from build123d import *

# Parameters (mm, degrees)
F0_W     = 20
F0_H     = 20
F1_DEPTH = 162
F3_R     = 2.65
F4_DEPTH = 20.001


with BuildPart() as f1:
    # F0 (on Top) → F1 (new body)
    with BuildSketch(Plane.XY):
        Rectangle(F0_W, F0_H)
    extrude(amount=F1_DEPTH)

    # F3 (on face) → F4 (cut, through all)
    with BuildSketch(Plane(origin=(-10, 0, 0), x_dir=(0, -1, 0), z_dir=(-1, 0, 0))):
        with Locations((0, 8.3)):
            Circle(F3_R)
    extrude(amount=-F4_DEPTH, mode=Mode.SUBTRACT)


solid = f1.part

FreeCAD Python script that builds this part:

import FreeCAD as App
import Part
import Sketcher


def add_polygon(sketch, points):
    """Adds a closed chain of lines whose ends are joined by coincident constraints."""
    first, n = sketch.GeometryCount, len(points)
    for a, b in zip(points, points[1:] + points[:1]):
        sketch.addGeometry(Part.LineSegment(App.Vector(*a, 0), App.Vector(*b, 0)), False)
    for i in range(n):
        sketch.addConstraint(Sketcher.Constraint("Coincident", first + i, 2, first + (i + 1) % n, 1))

doc = App.newDocument("Part")
body = doc.addObject("PartDesign::Body", "Body")

sketch1 = body.newObject("Sketcher::SketchObject", "Sketch")
sketch1.AttachmentSupport = (doc.getObject("XY_Plane"), [""])
sketch1.MapMode = "FlatFace"
add_polygon(sketch1, [(-10, 10), (-10, -10), (10, -10), (10, 10)])
sketch1.addConstraint([
    Sketcher.Constraint("Vertical", 0),
    Sketcher.Constraint("Horizontal", 1),
    Sketcher.Constraint("Vertical", 2),
    Sketcher.Constraint("Horizontal", 3),
    Sketcher.Constraint("Symmetric", 0, 2, 2, 2, -1, 1),
    Sketcher.Constraint("Equal", 3, 0),
    Sketcher.Constraint("DistanceX", 1, 1, 1, 2, 20.0),
])
pad1 = body.newObject("PartDesign::Pad", "Pad")
pad1.Profile = sketch1
pad1.Length = 162

sketch2 = body.newObject("Sketcher::SketchObject", "Sketch001")
sketch2.AttachmentSupport = (doc.getObject("YZ_Plane"), [""])
sketch2.MapMode = "FlatFace"
sketch2.AttachmentOffset = App.Placement(App.Vector(0, 0, -10), App.Rotation())
sketch2.addGeometry(Part.Circle(App.Vector(0, 8.3, 0), App.Vector(0, 0, 1), 2.65), False)
sketch2.addConstraint([
    Sketcher.Constraint("PointOnObject", 0, 3, -2),
    Sketcher.Constraint("Diameter", 0, 5.3),
    Sketcher.Constraint("DistanceY", -1, 1, 0, 3, 8.3),
])
pocket1 = body.newObject("PartDesign::Pocket", "Pocket")
pocket1.Profile = sketch2
pocket1.Type = "ThroughAll"
pocket1.Reversed = True

doc.recompute()
